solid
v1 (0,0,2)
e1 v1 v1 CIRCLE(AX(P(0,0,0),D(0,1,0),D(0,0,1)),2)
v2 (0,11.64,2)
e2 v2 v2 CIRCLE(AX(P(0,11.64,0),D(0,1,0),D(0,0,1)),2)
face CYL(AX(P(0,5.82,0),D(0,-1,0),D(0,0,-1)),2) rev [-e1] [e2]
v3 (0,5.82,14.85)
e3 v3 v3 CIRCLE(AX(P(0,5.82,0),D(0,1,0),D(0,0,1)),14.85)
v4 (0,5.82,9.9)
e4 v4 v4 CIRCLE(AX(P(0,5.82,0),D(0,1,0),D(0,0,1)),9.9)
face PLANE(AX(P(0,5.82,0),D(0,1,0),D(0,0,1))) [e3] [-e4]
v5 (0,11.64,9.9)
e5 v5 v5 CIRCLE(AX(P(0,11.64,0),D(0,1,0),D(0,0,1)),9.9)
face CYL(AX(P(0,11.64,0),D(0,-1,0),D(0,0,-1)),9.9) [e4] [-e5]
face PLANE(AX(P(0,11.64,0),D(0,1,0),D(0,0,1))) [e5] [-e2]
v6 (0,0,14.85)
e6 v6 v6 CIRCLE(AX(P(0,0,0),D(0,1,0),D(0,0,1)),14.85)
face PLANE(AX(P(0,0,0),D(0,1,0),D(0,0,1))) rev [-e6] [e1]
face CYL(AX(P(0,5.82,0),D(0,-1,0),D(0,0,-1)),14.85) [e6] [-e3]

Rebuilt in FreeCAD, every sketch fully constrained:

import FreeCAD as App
import Part
import Sketcher
from FreeCAD import Vector
Q = App.Units.Quantity

doc = App.newDocument("Part")
body = doc.addObject("PartDesign::Body", "Body")

# Sketch on XZ plane
sketch1 = body.newObject("Sketcher::SketchObject", "Sketch")
sketch1.AttachmentSupport = (doc.getObject("XZ_Plane"), [""])
sketch1.MapMode = "FlatFace"
sketch1.addGeometry(Part.Circle(Vector(0, 0, 0), Vector(0, 0, 1), 14.8), False)
sketch1.addGeometry(Part.Circle(Vector(0, 0, 0), Vector(0, 0, 1), 2), False)
sketch1.addConstraint(Sketcher.Constraint("Coincident", 0, 3, -1, 1))
sketch1.addConstraint(Sketcher.Constraint("Coincident", 1, 3, -1, 1))
sketch1.addConstraint(Sketcher.Constraint("Diameter", 1, Q("4 mm")))
sketch1.addConstraint(Sketcher.Constraint("Diameter", 0, Q("29.7 mm")))
pad1 = body.newObject("PartDesign::Pad", "Pad")
pad1.Profile = sketch1
pad1.Length = 5.82
pad1.Reversed = True

# Sketch on XZ plane
sketch2 = body.newObject("Sketcher::SketchObject", "Sketch001")
sketch2.AttachmentSupport = (doc.getObject("XZ_Plane"), [""])
sketch2.MapMode = "FlatFace"
sketch2.AttachmentOffset = App.Placement(Vector(0, 0, -5.82), App.Rotation())
sketch2.addGeometry(Part.Circle(Vector(0, 0, 0), Vector(0, 0, 1), 9.9), False)
sketch2.addGeometry(Part.Circle(Vector(0, 0, 0), Vector(0, 0, 1), 2), False)
sketch2.addConstraint(Sketcher.Constraint("Coincident", 0, 3, -1, 1))
sketch2.addConstraint(Sketcher.Constraint("Coincident", 1, 3, -1, 1))
sketch2.addConstraint(Sketcher.Constraint("Diameter", 1, Q("4 mm")))
sketch2.addConstraint(Sketcher.Constraint("Diameter", 0, Q("19.8 mm")))
pad2 = body.newObject("PartDesign::Pad", "Pad001")
pad2.Profile = sketch2
pad2.Length = 5.82
pad2.Reversed = True

doc.recompute()
